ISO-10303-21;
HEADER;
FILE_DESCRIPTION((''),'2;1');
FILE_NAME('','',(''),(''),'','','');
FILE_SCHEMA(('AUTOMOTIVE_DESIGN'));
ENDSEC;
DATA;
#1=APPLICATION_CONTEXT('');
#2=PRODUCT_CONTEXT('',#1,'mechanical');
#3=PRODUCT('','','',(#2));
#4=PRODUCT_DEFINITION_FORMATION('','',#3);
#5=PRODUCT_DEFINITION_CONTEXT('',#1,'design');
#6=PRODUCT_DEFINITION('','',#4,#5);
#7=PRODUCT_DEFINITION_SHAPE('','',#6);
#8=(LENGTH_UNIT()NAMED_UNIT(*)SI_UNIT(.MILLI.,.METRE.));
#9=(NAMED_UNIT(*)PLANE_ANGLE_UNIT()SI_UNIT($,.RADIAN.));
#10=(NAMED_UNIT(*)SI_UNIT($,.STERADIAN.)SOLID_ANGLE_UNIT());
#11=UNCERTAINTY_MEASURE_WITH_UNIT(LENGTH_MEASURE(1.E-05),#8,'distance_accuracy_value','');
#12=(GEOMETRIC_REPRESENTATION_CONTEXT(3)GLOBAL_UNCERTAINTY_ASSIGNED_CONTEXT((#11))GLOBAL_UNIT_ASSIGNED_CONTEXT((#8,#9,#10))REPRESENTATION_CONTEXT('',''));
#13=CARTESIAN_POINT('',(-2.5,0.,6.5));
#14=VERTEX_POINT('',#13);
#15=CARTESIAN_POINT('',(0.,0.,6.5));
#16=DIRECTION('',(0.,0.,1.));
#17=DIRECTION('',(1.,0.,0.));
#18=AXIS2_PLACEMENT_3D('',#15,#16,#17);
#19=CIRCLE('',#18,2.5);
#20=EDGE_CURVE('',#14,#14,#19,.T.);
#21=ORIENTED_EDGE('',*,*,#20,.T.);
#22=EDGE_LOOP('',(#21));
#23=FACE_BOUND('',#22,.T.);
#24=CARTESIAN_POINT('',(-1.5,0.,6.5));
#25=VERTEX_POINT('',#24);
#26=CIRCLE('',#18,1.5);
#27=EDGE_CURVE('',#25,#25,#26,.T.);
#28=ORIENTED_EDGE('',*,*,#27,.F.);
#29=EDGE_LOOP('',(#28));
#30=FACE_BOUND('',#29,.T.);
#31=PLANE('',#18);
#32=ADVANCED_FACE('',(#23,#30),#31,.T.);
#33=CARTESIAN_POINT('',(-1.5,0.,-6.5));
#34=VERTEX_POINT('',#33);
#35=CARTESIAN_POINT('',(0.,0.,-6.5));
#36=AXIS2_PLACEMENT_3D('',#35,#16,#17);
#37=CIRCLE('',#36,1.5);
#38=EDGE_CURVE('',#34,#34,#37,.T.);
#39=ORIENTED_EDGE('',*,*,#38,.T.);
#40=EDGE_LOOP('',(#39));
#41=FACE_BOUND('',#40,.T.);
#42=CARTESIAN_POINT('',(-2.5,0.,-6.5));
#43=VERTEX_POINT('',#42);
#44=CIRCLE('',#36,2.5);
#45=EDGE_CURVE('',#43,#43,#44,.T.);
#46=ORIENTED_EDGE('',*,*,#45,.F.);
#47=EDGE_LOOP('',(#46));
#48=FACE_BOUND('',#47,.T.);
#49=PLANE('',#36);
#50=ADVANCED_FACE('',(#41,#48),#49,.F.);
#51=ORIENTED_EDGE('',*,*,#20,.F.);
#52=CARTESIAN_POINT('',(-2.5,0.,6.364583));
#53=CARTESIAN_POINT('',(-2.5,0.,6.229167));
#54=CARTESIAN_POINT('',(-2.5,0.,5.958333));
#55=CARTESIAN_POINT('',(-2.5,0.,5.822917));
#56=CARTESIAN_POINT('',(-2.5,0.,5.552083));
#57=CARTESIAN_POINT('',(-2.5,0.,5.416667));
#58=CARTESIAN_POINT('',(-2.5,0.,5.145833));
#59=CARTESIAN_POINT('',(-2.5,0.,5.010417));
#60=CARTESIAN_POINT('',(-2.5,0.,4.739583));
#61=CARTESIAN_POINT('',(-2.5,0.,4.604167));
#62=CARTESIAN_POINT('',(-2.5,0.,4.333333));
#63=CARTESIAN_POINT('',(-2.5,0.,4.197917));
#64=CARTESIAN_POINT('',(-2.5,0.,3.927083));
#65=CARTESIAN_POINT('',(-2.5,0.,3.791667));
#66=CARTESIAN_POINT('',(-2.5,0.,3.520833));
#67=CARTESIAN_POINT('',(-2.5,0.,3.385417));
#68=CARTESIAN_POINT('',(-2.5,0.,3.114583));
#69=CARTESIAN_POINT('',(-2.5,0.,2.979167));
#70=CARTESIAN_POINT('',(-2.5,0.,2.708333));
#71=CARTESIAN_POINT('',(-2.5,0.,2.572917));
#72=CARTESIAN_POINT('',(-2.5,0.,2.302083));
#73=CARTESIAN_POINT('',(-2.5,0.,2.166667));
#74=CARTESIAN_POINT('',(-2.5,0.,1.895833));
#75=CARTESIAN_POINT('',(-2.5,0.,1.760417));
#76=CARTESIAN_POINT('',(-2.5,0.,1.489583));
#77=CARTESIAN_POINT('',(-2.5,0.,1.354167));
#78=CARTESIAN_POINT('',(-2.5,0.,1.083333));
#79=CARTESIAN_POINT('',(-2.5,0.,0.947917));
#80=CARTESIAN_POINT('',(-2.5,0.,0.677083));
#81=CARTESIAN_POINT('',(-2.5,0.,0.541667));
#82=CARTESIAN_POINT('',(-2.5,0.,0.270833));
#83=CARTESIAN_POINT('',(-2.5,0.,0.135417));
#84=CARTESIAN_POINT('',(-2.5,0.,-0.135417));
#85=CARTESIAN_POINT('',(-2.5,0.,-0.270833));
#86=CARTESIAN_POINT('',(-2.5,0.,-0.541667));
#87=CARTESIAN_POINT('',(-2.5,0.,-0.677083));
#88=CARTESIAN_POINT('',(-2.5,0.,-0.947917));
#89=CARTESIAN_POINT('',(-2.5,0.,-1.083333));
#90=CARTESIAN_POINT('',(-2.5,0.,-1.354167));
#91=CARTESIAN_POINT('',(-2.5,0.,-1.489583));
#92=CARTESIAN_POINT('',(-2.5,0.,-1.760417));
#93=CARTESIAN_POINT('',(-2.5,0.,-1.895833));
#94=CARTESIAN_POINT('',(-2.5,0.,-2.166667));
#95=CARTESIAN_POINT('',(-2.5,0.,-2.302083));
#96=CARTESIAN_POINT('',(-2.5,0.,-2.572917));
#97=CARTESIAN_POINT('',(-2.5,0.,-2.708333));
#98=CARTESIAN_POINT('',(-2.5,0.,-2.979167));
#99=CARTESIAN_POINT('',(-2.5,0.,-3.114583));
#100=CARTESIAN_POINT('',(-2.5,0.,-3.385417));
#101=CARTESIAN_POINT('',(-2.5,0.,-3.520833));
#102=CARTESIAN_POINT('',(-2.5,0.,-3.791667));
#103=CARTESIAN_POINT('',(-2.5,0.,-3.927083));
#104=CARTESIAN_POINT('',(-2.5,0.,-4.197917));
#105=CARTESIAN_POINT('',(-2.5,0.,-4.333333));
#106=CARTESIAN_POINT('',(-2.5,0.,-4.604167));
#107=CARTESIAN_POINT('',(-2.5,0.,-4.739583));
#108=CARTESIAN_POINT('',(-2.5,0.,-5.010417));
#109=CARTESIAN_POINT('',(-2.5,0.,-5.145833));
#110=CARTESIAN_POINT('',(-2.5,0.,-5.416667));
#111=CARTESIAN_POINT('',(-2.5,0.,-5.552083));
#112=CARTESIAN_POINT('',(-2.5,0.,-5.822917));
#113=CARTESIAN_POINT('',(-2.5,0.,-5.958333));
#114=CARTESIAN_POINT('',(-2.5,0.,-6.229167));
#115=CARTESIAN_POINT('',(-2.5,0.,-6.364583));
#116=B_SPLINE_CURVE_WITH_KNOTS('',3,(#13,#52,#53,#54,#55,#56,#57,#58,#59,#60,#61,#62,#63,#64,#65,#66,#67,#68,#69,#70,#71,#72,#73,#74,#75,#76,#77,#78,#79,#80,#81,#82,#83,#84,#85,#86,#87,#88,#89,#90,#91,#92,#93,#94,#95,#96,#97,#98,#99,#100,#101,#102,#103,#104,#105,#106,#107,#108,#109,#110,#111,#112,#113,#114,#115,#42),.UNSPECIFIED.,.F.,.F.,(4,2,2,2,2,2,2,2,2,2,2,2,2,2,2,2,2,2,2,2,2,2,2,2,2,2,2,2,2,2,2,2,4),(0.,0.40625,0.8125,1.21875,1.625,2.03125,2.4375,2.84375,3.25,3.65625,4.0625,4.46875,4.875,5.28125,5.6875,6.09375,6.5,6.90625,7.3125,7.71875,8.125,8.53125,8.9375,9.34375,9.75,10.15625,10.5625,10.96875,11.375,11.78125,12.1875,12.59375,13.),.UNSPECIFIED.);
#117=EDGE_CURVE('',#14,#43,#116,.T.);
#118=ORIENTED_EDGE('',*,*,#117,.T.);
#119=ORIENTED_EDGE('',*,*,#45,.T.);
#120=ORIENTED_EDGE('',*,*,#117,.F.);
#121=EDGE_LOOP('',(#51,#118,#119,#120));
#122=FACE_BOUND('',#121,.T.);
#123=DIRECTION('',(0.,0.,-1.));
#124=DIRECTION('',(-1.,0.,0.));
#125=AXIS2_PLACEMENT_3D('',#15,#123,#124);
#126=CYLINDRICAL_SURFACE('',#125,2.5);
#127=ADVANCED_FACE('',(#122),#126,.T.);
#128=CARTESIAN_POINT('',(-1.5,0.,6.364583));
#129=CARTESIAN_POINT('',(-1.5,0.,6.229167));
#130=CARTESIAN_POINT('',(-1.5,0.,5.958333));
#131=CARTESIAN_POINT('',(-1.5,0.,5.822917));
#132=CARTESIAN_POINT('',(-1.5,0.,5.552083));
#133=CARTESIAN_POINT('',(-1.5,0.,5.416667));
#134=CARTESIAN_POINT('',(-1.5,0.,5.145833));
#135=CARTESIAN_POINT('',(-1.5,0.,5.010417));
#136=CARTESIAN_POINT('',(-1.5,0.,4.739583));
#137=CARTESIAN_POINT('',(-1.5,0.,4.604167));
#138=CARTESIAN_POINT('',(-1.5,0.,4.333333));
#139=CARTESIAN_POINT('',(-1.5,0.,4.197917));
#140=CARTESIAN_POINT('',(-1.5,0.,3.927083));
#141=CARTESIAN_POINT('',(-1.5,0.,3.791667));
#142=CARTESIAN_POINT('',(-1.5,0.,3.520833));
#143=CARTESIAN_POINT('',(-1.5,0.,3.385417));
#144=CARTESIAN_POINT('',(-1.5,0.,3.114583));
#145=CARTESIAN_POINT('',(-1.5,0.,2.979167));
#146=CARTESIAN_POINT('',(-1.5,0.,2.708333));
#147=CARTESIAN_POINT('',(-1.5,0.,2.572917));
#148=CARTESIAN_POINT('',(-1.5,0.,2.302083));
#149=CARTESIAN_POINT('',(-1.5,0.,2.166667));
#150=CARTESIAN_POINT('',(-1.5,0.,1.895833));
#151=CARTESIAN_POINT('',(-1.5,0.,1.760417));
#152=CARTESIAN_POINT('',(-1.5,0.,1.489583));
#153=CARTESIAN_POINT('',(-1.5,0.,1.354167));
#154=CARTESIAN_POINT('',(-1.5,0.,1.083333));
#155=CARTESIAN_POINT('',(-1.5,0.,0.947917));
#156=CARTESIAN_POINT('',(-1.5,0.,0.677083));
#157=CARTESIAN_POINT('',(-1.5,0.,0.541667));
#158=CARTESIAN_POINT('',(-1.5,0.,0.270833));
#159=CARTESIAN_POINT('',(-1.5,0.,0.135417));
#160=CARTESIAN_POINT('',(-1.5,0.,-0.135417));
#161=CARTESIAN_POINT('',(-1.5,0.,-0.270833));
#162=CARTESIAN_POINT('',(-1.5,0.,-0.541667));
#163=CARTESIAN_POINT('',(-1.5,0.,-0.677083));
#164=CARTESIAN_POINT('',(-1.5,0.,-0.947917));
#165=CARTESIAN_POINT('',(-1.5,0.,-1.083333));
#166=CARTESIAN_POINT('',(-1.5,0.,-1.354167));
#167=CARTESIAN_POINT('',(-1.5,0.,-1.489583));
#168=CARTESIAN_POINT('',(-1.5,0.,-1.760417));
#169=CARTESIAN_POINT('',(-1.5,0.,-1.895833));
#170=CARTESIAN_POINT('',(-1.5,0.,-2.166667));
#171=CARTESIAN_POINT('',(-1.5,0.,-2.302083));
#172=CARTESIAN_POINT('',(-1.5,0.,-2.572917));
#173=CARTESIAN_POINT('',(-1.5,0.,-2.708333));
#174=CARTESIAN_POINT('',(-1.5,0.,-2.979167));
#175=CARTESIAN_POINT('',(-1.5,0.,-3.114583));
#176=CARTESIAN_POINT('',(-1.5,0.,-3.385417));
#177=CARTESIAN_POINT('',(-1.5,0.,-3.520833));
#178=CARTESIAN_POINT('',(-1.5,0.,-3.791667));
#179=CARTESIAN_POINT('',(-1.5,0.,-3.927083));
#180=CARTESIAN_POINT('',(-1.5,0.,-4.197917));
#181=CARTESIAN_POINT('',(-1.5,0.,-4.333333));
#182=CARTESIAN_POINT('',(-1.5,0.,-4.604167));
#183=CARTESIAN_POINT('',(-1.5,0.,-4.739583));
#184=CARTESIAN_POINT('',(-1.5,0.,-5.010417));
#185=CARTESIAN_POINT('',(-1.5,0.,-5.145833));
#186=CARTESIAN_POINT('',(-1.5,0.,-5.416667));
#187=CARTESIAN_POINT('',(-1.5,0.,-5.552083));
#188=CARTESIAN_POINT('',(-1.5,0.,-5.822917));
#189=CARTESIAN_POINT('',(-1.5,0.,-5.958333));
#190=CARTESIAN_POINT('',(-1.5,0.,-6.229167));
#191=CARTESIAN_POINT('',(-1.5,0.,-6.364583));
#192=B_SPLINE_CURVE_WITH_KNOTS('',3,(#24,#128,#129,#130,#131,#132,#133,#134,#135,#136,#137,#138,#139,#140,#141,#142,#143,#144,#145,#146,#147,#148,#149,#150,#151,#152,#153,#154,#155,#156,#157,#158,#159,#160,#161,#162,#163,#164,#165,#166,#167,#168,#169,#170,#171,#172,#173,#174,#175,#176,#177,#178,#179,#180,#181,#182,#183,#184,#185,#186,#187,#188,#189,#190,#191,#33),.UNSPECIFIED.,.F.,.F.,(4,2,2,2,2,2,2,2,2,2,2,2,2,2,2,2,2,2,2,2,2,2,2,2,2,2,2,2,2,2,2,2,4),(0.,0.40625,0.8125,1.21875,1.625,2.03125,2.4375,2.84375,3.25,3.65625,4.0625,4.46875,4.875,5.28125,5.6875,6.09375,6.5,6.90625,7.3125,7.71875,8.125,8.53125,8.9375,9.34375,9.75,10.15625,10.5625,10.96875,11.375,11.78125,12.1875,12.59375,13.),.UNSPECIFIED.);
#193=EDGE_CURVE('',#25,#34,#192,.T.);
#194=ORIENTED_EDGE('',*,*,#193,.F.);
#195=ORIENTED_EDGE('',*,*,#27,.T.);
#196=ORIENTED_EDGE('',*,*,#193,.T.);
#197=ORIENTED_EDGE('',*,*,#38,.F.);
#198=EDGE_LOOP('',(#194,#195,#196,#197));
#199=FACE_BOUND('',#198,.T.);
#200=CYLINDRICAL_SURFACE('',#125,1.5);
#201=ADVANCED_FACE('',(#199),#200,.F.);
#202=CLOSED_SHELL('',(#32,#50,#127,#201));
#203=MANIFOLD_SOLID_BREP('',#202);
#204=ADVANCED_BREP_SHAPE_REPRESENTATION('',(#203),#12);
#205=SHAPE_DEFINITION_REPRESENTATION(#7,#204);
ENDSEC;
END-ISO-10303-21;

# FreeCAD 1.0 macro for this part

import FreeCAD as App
import Part
import Sketcher

doc = App.newDocument("Part")
body = doc.addObject("PartDesign::Body", "Body")

# Sketch on XY plane
sketch1 = doc.addObject("Sketcher::SketchObject", "Sketch")
body.addObject(sketch1)
sketch1.AttachmentSupport = (doc.XY_Plane, [""])
sketch1.MapMode = "FlatFace"
sketch1.addGeometry([
    Part.Circle(App.Vector(0, 0, 0), App.Vector(0, 0, 1), 2.5),
    Part.Circle(App.Vector(0, 0, 0), App.Vector(0, 0, 1), 1.5),
], False)
sketch1.addConstraint([
    Sketcher.Constraint("Coincident", 0, 3, -1, 1),
    Sketcher.Constraint("Coincident", 1, 3, -1, 1),
    Sketcher.Constraint("Diameter", 0, 5.0),
    Sketcher.Constraint("Diameter", 1, 3.0),
])
pad1 = doc.addObject("PartDesign::Pad", "Pad")
body.addObject(pad1)
pad1.Profile = sketch1
pad1.Length = 13
pad1.Midplane = True

doc.recompute()
